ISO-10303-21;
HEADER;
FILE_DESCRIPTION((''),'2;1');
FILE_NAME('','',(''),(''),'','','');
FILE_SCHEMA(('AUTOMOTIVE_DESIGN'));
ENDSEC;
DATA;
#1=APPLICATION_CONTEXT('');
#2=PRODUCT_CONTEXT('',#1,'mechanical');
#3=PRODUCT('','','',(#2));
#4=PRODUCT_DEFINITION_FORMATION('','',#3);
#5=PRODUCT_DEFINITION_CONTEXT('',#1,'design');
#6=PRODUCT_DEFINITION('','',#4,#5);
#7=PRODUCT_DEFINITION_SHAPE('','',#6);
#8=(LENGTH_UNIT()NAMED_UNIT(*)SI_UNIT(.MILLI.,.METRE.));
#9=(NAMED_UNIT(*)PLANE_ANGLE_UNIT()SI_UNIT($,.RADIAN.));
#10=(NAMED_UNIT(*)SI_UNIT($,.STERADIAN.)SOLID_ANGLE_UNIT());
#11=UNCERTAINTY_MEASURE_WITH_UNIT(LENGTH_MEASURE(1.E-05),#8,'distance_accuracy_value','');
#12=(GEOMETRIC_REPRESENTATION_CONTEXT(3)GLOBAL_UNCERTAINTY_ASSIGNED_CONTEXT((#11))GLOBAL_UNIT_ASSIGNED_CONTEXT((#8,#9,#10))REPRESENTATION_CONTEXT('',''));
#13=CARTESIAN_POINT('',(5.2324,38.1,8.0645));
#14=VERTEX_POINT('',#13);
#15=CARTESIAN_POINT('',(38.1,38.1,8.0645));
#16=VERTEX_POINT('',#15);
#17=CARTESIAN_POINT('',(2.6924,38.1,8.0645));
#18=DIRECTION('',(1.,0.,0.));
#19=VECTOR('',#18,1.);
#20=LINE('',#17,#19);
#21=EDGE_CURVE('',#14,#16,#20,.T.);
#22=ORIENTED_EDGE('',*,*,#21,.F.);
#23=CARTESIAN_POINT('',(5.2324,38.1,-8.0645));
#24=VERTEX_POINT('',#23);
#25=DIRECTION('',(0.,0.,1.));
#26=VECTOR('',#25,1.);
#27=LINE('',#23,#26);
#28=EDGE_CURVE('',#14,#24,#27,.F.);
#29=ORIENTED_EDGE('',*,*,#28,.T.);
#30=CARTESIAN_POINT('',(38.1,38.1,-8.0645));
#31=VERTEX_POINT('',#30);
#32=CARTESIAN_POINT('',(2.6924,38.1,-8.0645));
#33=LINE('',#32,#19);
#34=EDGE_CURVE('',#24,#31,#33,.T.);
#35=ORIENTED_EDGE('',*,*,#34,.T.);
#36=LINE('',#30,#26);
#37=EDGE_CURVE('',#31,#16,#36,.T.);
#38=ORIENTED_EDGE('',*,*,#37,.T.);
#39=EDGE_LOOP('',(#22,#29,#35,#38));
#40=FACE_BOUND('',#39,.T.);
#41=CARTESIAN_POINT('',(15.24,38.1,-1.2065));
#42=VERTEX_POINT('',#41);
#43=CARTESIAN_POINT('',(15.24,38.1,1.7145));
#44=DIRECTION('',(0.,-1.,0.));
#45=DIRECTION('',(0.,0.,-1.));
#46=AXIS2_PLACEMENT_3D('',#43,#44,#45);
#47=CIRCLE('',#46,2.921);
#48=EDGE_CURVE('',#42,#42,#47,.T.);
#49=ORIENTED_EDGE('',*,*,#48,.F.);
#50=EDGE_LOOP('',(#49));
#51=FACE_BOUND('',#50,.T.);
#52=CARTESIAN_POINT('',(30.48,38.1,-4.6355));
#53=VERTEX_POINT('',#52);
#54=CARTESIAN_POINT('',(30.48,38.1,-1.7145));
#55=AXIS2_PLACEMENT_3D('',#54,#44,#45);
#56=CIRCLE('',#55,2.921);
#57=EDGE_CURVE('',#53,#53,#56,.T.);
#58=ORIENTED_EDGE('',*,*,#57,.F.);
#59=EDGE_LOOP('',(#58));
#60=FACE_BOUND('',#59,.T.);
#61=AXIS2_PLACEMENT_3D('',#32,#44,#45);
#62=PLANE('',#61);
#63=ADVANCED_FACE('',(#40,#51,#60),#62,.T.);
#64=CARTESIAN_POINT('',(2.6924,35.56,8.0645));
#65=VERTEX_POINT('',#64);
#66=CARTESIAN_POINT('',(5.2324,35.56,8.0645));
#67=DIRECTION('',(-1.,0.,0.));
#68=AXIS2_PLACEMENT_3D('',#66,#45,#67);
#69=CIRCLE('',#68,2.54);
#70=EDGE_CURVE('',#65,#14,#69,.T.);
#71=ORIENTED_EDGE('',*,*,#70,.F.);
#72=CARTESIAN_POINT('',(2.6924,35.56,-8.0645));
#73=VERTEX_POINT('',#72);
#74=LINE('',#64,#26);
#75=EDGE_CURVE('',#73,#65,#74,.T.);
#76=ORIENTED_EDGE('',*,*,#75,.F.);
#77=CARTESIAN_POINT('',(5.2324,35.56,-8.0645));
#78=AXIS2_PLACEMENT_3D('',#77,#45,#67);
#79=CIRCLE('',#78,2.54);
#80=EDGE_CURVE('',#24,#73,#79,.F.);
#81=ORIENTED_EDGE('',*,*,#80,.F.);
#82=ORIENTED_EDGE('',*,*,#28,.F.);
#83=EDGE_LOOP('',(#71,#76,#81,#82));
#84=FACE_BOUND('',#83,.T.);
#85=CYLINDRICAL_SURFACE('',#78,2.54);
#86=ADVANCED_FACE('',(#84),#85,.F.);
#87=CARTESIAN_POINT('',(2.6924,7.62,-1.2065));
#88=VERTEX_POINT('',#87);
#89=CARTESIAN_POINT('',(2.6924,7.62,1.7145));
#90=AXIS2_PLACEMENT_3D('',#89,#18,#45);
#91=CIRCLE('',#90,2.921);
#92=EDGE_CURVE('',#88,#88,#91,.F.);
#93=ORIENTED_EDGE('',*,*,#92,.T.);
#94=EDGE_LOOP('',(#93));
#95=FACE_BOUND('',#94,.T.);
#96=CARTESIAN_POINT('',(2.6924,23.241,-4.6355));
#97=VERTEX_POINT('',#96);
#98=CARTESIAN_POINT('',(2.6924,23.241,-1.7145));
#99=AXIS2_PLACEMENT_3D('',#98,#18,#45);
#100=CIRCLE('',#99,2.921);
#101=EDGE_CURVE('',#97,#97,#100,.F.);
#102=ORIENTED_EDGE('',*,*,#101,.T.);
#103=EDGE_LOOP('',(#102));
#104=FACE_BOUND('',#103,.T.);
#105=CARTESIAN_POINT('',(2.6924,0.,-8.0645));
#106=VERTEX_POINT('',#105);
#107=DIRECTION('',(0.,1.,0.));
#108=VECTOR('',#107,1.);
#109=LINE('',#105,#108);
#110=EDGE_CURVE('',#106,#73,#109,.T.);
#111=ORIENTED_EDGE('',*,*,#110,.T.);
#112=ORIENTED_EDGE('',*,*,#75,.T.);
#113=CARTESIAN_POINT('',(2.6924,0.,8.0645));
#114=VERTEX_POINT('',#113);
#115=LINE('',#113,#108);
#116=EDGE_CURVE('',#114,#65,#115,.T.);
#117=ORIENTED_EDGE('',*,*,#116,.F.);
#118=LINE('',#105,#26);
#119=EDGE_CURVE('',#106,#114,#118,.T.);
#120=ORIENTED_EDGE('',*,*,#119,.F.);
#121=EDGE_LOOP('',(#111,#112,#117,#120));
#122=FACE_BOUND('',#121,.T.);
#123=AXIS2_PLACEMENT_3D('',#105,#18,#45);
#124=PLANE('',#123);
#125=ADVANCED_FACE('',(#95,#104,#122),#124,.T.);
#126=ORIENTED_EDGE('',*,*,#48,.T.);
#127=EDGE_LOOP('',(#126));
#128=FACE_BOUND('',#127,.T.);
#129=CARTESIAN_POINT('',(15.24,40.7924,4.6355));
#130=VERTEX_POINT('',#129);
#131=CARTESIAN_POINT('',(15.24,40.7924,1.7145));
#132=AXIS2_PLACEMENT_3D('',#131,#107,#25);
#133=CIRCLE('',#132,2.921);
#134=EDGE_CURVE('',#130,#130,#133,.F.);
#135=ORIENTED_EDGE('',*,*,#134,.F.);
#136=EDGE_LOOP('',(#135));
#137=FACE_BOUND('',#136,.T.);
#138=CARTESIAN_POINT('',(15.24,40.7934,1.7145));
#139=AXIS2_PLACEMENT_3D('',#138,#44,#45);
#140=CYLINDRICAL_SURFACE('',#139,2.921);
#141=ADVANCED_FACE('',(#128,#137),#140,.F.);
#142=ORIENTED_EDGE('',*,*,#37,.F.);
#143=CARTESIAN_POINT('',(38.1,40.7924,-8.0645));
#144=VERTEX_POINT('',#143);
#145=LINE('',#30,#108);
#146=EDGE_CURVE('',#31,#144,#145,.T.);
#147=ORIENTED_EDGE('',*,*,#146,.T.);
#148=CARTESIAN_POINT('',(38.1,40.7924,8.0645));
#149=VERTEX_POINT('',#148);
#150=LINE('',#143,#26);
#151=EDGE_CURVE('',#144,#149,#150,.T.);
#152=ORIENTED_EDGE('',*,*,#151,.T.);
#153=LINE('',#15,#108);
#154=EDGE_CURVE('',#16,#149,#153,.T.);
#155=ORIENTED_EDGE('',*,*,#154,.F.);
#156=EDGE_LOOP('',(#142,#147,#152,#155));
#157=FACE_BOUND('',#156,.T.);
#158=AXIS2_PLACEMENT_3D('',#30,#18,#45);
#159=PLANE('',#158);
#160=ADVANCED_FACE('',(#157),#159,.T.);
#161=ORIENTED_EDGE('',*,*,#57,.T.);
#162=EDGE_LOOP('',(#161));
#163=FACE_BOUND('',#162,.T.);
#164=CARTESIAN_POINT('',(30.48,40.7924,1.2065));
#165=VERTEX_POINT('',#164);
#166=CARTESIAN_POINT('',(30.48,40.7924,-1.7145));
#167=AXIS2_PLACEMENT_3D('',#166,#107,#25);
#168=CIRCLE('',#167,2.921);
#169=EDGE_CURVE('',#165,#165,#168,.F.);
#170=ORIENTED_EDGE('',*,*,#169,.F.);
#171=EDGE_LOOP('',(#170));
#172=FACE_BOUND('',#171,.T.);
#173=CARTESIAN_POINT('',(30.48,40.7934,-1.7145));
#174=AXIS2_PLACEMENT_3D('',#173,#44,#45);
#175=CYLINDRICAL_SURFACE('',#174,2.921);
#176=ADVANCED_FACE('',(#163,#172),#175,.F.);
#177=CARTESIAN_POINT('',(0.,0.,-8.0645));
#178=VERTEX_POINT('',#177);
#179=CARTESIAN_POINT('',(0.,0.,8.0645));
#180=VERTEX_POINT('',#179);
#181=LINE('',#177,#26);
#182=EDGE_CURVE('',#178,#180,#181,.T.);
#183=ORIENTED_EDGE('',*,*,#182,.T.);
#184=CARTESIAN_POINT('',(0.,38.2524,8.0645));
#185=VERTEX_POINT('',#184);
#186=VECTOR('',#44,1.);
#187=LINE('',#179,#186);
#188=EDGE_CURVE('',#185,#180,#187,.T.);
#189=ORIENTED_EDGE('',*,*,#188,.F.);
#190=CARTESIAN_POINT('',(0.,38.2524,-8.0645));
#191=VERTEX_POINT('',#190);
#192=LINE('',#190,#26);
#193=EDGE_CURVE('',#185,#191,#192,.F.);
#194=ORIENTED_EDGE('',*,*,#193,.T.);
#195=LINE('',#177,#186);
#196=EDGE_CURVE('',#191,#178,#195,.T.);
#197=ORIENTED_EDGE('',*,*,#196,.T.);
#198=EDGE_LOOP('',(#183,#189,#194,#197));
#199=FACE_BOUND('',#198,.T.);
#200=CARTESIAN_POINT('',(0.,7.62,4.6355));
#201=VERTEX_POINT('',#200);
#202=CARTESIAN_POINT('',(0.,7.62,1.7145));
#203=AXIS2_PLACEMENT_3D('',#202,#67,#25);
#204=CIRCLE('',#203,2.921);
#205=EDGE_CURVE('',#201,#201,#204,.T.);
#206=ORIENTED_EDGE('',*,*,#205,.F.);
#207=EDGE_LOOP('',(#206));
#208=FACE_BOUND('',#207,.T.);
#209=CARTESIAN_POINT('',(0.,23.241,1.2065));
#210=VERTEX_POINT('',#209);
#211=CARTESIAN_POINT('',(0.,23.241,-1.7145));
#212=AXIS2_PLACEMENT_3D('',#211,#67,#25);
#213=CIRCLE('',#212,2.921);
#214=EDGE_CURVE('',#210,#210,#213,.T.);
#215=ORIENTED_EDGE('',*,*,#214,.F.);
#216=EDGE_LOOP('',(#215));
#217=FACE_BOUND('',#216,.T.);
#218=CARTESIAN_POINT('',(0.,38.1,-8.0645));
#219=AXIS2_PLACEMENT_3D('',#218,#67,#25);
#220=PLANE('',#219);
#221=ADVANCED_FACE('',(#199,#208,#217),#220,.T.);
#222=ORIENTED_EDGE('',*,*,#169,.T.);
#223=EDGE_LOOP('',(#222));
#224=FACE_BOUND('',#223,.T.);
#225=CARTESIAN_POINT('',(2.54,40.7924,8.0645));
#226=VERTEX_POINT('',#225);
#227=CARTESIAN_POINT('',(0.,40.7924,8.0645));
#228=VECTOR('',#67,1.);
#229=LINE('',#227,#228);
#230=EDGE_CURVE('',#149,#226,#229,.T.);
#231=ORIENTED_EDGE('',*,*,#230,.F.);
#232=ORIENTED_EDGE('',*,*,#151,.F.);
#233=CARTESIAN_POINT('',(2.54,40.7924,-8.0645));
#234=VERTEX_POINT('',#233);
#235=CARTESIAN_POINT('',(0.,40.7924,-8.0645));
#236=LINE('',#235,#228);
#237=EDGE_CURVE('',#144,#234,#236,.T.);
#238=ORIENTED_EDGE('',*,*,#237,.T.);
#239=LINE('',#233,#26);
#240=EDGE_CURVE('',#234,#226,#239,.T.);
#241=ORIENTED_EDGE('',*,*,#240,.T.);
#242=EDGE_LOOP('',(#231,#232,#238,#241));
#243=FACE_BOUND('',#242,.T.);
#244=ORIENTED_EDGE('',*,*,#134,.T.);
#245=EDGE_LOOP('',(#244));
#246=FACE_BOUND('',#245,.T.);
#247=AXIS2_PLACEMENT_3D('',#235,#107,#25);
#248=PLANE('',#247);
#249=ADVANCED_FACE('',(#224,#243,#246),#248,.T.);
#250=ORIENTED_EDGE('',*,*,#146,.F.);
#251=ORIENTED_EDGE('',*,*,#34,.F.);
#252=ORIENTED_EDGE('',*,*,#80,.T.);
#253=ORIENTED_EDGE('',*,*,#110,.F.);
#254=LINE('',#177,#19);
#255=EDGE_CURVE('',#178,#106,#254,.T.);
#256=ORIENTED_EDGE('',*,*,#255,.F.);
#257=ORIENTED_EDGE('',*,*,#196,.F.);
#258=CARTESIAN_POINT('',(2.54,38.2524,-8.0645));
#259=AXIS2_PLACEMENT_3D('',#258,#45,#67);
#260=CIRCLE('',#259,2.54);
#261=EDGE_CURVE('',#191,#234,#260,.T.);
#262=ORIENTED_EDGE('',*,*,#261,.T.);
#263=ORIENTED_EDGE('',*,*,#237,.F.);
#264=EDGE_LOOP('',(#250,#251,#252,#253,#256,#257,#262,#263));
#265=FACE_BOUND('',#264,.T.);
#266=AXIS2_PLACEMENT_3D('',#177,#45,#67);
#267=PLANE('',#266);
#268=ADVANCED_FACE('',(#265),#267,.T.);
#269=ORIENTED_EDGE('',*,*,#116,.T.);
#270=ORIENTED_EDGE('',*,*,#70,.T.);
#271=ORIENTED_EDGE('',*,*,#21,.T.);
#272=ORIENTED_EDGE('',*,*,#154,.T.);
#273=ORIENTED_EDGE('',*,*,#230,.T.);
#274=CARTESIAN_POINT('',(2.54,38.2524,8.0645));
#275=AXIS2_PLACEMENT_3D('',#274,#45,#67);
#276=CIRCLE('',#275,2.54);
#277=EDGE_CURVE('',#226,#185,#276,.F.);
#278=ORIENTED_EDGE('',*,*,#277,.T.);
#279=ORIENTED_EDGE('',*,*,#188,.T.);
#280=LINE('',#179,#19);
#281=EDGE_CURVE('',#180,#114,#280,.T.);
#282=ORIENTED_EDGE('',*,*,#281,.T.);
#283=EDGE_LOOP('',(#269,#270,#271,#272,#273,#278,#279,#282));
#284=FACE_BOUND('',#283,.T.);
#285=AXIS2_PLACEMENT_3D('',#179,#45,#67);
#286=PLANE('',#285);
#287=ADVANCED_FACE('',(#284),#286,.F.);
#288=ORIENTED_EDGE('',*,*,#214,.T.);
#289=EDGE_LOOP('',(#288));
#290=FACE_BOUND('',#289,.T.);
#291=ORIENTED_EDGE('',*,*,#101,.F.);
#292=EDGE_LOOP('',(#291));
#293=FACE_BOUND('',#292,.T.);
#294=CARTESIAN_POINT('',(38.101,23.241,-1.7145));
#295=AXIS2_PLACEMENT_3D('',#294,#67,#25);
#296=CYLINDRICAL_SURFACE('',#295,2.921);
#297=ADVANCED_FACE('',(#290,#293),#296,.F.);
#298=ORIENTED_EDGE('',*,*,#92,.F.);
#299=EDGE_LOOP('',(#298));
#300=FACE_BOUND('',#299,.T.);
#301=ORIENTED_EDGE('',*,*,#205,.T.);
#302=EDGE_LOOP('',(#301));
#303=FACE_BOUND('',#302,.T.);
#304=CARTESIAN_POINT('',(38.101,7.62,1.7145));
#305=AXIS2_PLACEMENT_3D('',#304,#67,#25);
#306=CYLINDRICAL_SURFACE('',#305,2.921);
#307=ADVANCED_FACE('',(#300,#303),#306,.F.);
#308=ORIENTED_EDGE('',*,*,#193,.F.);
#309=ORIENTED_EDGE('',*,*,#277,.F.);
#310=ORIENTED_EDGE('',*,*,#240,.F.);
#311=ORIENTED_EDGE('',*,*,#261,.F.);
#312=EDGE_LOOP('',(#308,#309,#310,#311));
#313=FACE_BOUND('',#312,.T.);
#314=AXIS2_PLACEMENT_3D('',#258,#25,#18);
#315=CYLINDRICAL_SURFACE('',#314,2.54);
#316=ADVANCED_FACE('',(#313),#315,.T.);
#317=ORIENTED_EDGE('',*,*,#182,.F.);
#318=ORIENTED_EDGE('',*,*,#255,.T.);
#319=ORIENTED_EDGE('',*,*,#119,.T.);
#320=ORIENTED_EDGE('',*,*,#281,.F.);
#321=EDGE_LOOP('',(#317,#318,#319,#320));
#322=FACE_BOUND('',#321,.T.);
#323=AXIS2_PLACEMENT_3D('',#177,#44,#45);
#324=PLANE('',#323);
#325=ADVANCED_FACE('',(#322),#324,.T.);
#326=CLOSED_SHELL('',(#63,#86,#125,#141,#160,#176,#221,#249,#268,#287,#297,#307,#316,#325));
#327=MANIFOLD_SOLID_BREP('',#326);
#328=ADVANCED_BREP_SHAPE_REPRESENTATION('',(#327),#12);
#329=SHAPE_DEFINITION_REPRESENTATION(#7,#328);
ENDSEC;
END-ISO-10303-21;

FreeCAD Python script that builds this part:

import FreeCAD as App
import Part
import Sketcher
from FreeCAD import Vector
Q = App.Units.Quantity


def edges_at(feature, points):
    """Names of the edges that pass closest to the given points."""
    edges = feature.Shape.Edges
    near = lambda p: min(range(len(edges)), key=lambda i: edges[i].distToShape(Part.Vertex(*p))[0])
    return sorted({f"Edge{near(p) + 1}" for p in points})


def add_polygon(sketch, points):
    """Adds a closed chain of lines whose ends are joined by coincident constraints."""
    first, n = sketch.GeometryCount, len(points)
    for a, b in zip(points, points[1:] + points[:1]):
        sketch.addGeometry(Part.LineSegment(App.Vector(*a, 0), App.Vector(*b, 0)), False)
    for i in range(n):
        sketch.addConstraint(Sketcher.Constraint("Coincident", first + i, 2, first + (i + 1) % n, 1))

doc = App.newDocument("Part")
body = doc.addObject("PartDesign::Body", "Body")

sketch1 = doc.addObject("Sketcher::SketchObject", "Sketch")
body.addObject(sketch1)
sketch1.AttachmentSupport = (doc.XY_Plane, [""])
sketch1.MapMode = "FlatFace"
add_polygon(sketch1, [(0, 0), (2.6924, 0), (2.6924, 38.1), (38.1, 38.1), (38.1, 40.7924), (0, 40.7924)])
sketch1.addConstraint(Sketcher.Constraint("Horizontal", 0))
sketch1.addConstraint(Sketcher.Constraint("Vertical", 1))
sketch1.addConstraint(Sketcher.Constraint("Horizontal", 2))
sketch1.addConstraint(Sketcher.Constraint("Vertical", 3))
sketch1.addConstraint(Sketcher.Constraint("Horizontal", 4))
sketch1.addConstraint(Sketcher.Constraint("Vertical", 5))
sketch1.addConstraint(Sketcher.Constraint("Coincident", 5, 2, -1, 1))
sketch1.addConstraint(Sketcher.Constraint("Equal", 4, 1))
sketch1.addConstraint(Sketcher.Constraint("Equal", 0, 3))
sketch1.addConstraint(Sketcher.Constraint("DistanceX", 4, 2, 4, 1, Q("1.5 in")))
sketch1.addConstraint(Sketcher.Constraint("DistanceX", 0, 1, 0, 2, Q("0.106 in")))
pad1 = doc.addObject("PartDesign::Pad", "Pad")
body.addObject(pad1)
pad1.Profile = sketch1
pad1.Type = "TwoLengths"
pad1.Length = Q("0.3175 in")
pad1.Length2 = Q("0.3175 in")

sketch2 = doc.addObject("Sketcher::SketchObject", "Sketch001")
body.addObject(sketch2)
sketch2.AttachmentSupport = (doc.YZ_Plane, [""])
sketch2.MapMode = "FlatFace"
sketch2.addGeometry(Part.Circle(Vector(7.62, 1.7145, 0), Vector(0, 0, 1), 2.921), False)
sketch2.addConstraint(Sketcher.Constraint("Diameter", 0, Q("0.23 in")))
sketch2.addConstraint(Sketcher.Constraint("DistanceX", -1, 1, 0, 3, Q("0.3 in")))
sketch2.addConstraint(Sketcher.Constraint("DistanceY", -1, 1, 0, 3, Q("0.0675 in")))
pocket1 = doc.addObject("PartDesign::Pocket", "Pocket")
body.addObject(pocket1)
pocket1.Profile = sketch2
pocket1.Type = "UpToFirst"
pocket1.Reversed = True

sketch3 = doc.addObject("Sketcher::SketchObject", "Sketch002")
body.addObject(sketch3)
sketch3.AttachmentSupport = (doc.YZ_Plane, [""])
sketch3.MapMode = "FlatFace"
sketch3.addGeometry(Part.Circle(Vector(23.241, -1.7145, 0), Vector(0, 0, 1), 2.921), False)
sketch3.addConstraint(Sketcher.Constraint("Diameter", 0, Q("0.23 in")))
sketch3.addConstraint(Sketcher.Constraint("DistanceX", -1, 1, 0, 3, Q("0.915 in")))
sketch3.addConstraint(Sketcher.Constraint("DistanceY", 0, 3, -1, 1, Q("0.0675 in")))
pocket2 = doc.addObject("PartDesign::Pocket", "Pocket001")
body.addObject(pocket2)
pocket2.Profile = sketch3
pocket2.Type = "UpToFirst"
pocket2.Reversed = True

sketch4 = doc.addObject("Sketcher::SketchObject", "Sketch003")
body.addObject(sketch4)
sketch4.AttachmentSupport = (doc.XZ_Plane, [""])
sketch4.MapMode = "FlatFace"
sketch4.AttachmentOffset = App.Placement(Vector(0, 0, -1.5 * 25.4), App.Rotation())
sketch4.addGeometry(Part.Circle(Vector(30.48, -1.7145, 0), Vector(0, 0, 1), 2.921), False)
sketch4.addConstraint(Sketcher.Constraint("Diameter", 0, Q("0.23 in")))
sketch4.addConstraint(Sketcher.Constraint("DistanceX", -1, 1, 0, 3, Q("1.2 in")))
sketch4.addConstraint(Sketcher.Constraint("DistanceY", 0, 3, -1, 1, Q("0.0675 in")))
pocket3 = doc.addObject("PartDesign::Pocket", "Pocket002")
body.addObject(pocket3)
pocket3.Profile = sketch4
pocket3.Type = "UpToFirst"

sketch5 = doc.addObject("Sketcher::SketchObject", "Sketch004")
body.addObject(sketch5)
sketch5.AttachmentSupport = (doc.XZ_Plane, [""])
sketch5.MapMode = "FlatFace"
sketch5.AttachmentOffset = App.Placement(Vector(0, 0, -1.5 * 25.4), App.Rotation())
sketch5.addGeometry(Part.Circle(Vector(15.24, 1.7145, 0), Vector(0, 0, 1), 2.921), False)
sketch5.addConstraint(Sketcher.Constraint("Diameter", 0, Q("0.23 in")))
sketch5.addConstraint(Sketcher.Constraint("DistanceX", -1, 1, 0, 3, Q("0.6 in")))
sketch5.addConstraint(Sketcher.Constraint("DistanceY", -1, 1, 0, 3, Q("0.0675 in")))
pocket4 = doc.addObject("PartDesign::Pocket", "Pocket003")
body.addObject(pocket4)
pocket4.Profile = sketch5
pocket4.Type = "UpToFirst"
doc.recompute()

fillet = doc.addObject("PartDesign::Fillet", "Fillet")
body.addObject(fillet)
fillet.Base = (pocket4, edges_at(pocket4, [(0, 40.792, 0), (2.692, 38.1, 0)]))
fillet.Radius = Q("0.1 in")

doc.recompute()
